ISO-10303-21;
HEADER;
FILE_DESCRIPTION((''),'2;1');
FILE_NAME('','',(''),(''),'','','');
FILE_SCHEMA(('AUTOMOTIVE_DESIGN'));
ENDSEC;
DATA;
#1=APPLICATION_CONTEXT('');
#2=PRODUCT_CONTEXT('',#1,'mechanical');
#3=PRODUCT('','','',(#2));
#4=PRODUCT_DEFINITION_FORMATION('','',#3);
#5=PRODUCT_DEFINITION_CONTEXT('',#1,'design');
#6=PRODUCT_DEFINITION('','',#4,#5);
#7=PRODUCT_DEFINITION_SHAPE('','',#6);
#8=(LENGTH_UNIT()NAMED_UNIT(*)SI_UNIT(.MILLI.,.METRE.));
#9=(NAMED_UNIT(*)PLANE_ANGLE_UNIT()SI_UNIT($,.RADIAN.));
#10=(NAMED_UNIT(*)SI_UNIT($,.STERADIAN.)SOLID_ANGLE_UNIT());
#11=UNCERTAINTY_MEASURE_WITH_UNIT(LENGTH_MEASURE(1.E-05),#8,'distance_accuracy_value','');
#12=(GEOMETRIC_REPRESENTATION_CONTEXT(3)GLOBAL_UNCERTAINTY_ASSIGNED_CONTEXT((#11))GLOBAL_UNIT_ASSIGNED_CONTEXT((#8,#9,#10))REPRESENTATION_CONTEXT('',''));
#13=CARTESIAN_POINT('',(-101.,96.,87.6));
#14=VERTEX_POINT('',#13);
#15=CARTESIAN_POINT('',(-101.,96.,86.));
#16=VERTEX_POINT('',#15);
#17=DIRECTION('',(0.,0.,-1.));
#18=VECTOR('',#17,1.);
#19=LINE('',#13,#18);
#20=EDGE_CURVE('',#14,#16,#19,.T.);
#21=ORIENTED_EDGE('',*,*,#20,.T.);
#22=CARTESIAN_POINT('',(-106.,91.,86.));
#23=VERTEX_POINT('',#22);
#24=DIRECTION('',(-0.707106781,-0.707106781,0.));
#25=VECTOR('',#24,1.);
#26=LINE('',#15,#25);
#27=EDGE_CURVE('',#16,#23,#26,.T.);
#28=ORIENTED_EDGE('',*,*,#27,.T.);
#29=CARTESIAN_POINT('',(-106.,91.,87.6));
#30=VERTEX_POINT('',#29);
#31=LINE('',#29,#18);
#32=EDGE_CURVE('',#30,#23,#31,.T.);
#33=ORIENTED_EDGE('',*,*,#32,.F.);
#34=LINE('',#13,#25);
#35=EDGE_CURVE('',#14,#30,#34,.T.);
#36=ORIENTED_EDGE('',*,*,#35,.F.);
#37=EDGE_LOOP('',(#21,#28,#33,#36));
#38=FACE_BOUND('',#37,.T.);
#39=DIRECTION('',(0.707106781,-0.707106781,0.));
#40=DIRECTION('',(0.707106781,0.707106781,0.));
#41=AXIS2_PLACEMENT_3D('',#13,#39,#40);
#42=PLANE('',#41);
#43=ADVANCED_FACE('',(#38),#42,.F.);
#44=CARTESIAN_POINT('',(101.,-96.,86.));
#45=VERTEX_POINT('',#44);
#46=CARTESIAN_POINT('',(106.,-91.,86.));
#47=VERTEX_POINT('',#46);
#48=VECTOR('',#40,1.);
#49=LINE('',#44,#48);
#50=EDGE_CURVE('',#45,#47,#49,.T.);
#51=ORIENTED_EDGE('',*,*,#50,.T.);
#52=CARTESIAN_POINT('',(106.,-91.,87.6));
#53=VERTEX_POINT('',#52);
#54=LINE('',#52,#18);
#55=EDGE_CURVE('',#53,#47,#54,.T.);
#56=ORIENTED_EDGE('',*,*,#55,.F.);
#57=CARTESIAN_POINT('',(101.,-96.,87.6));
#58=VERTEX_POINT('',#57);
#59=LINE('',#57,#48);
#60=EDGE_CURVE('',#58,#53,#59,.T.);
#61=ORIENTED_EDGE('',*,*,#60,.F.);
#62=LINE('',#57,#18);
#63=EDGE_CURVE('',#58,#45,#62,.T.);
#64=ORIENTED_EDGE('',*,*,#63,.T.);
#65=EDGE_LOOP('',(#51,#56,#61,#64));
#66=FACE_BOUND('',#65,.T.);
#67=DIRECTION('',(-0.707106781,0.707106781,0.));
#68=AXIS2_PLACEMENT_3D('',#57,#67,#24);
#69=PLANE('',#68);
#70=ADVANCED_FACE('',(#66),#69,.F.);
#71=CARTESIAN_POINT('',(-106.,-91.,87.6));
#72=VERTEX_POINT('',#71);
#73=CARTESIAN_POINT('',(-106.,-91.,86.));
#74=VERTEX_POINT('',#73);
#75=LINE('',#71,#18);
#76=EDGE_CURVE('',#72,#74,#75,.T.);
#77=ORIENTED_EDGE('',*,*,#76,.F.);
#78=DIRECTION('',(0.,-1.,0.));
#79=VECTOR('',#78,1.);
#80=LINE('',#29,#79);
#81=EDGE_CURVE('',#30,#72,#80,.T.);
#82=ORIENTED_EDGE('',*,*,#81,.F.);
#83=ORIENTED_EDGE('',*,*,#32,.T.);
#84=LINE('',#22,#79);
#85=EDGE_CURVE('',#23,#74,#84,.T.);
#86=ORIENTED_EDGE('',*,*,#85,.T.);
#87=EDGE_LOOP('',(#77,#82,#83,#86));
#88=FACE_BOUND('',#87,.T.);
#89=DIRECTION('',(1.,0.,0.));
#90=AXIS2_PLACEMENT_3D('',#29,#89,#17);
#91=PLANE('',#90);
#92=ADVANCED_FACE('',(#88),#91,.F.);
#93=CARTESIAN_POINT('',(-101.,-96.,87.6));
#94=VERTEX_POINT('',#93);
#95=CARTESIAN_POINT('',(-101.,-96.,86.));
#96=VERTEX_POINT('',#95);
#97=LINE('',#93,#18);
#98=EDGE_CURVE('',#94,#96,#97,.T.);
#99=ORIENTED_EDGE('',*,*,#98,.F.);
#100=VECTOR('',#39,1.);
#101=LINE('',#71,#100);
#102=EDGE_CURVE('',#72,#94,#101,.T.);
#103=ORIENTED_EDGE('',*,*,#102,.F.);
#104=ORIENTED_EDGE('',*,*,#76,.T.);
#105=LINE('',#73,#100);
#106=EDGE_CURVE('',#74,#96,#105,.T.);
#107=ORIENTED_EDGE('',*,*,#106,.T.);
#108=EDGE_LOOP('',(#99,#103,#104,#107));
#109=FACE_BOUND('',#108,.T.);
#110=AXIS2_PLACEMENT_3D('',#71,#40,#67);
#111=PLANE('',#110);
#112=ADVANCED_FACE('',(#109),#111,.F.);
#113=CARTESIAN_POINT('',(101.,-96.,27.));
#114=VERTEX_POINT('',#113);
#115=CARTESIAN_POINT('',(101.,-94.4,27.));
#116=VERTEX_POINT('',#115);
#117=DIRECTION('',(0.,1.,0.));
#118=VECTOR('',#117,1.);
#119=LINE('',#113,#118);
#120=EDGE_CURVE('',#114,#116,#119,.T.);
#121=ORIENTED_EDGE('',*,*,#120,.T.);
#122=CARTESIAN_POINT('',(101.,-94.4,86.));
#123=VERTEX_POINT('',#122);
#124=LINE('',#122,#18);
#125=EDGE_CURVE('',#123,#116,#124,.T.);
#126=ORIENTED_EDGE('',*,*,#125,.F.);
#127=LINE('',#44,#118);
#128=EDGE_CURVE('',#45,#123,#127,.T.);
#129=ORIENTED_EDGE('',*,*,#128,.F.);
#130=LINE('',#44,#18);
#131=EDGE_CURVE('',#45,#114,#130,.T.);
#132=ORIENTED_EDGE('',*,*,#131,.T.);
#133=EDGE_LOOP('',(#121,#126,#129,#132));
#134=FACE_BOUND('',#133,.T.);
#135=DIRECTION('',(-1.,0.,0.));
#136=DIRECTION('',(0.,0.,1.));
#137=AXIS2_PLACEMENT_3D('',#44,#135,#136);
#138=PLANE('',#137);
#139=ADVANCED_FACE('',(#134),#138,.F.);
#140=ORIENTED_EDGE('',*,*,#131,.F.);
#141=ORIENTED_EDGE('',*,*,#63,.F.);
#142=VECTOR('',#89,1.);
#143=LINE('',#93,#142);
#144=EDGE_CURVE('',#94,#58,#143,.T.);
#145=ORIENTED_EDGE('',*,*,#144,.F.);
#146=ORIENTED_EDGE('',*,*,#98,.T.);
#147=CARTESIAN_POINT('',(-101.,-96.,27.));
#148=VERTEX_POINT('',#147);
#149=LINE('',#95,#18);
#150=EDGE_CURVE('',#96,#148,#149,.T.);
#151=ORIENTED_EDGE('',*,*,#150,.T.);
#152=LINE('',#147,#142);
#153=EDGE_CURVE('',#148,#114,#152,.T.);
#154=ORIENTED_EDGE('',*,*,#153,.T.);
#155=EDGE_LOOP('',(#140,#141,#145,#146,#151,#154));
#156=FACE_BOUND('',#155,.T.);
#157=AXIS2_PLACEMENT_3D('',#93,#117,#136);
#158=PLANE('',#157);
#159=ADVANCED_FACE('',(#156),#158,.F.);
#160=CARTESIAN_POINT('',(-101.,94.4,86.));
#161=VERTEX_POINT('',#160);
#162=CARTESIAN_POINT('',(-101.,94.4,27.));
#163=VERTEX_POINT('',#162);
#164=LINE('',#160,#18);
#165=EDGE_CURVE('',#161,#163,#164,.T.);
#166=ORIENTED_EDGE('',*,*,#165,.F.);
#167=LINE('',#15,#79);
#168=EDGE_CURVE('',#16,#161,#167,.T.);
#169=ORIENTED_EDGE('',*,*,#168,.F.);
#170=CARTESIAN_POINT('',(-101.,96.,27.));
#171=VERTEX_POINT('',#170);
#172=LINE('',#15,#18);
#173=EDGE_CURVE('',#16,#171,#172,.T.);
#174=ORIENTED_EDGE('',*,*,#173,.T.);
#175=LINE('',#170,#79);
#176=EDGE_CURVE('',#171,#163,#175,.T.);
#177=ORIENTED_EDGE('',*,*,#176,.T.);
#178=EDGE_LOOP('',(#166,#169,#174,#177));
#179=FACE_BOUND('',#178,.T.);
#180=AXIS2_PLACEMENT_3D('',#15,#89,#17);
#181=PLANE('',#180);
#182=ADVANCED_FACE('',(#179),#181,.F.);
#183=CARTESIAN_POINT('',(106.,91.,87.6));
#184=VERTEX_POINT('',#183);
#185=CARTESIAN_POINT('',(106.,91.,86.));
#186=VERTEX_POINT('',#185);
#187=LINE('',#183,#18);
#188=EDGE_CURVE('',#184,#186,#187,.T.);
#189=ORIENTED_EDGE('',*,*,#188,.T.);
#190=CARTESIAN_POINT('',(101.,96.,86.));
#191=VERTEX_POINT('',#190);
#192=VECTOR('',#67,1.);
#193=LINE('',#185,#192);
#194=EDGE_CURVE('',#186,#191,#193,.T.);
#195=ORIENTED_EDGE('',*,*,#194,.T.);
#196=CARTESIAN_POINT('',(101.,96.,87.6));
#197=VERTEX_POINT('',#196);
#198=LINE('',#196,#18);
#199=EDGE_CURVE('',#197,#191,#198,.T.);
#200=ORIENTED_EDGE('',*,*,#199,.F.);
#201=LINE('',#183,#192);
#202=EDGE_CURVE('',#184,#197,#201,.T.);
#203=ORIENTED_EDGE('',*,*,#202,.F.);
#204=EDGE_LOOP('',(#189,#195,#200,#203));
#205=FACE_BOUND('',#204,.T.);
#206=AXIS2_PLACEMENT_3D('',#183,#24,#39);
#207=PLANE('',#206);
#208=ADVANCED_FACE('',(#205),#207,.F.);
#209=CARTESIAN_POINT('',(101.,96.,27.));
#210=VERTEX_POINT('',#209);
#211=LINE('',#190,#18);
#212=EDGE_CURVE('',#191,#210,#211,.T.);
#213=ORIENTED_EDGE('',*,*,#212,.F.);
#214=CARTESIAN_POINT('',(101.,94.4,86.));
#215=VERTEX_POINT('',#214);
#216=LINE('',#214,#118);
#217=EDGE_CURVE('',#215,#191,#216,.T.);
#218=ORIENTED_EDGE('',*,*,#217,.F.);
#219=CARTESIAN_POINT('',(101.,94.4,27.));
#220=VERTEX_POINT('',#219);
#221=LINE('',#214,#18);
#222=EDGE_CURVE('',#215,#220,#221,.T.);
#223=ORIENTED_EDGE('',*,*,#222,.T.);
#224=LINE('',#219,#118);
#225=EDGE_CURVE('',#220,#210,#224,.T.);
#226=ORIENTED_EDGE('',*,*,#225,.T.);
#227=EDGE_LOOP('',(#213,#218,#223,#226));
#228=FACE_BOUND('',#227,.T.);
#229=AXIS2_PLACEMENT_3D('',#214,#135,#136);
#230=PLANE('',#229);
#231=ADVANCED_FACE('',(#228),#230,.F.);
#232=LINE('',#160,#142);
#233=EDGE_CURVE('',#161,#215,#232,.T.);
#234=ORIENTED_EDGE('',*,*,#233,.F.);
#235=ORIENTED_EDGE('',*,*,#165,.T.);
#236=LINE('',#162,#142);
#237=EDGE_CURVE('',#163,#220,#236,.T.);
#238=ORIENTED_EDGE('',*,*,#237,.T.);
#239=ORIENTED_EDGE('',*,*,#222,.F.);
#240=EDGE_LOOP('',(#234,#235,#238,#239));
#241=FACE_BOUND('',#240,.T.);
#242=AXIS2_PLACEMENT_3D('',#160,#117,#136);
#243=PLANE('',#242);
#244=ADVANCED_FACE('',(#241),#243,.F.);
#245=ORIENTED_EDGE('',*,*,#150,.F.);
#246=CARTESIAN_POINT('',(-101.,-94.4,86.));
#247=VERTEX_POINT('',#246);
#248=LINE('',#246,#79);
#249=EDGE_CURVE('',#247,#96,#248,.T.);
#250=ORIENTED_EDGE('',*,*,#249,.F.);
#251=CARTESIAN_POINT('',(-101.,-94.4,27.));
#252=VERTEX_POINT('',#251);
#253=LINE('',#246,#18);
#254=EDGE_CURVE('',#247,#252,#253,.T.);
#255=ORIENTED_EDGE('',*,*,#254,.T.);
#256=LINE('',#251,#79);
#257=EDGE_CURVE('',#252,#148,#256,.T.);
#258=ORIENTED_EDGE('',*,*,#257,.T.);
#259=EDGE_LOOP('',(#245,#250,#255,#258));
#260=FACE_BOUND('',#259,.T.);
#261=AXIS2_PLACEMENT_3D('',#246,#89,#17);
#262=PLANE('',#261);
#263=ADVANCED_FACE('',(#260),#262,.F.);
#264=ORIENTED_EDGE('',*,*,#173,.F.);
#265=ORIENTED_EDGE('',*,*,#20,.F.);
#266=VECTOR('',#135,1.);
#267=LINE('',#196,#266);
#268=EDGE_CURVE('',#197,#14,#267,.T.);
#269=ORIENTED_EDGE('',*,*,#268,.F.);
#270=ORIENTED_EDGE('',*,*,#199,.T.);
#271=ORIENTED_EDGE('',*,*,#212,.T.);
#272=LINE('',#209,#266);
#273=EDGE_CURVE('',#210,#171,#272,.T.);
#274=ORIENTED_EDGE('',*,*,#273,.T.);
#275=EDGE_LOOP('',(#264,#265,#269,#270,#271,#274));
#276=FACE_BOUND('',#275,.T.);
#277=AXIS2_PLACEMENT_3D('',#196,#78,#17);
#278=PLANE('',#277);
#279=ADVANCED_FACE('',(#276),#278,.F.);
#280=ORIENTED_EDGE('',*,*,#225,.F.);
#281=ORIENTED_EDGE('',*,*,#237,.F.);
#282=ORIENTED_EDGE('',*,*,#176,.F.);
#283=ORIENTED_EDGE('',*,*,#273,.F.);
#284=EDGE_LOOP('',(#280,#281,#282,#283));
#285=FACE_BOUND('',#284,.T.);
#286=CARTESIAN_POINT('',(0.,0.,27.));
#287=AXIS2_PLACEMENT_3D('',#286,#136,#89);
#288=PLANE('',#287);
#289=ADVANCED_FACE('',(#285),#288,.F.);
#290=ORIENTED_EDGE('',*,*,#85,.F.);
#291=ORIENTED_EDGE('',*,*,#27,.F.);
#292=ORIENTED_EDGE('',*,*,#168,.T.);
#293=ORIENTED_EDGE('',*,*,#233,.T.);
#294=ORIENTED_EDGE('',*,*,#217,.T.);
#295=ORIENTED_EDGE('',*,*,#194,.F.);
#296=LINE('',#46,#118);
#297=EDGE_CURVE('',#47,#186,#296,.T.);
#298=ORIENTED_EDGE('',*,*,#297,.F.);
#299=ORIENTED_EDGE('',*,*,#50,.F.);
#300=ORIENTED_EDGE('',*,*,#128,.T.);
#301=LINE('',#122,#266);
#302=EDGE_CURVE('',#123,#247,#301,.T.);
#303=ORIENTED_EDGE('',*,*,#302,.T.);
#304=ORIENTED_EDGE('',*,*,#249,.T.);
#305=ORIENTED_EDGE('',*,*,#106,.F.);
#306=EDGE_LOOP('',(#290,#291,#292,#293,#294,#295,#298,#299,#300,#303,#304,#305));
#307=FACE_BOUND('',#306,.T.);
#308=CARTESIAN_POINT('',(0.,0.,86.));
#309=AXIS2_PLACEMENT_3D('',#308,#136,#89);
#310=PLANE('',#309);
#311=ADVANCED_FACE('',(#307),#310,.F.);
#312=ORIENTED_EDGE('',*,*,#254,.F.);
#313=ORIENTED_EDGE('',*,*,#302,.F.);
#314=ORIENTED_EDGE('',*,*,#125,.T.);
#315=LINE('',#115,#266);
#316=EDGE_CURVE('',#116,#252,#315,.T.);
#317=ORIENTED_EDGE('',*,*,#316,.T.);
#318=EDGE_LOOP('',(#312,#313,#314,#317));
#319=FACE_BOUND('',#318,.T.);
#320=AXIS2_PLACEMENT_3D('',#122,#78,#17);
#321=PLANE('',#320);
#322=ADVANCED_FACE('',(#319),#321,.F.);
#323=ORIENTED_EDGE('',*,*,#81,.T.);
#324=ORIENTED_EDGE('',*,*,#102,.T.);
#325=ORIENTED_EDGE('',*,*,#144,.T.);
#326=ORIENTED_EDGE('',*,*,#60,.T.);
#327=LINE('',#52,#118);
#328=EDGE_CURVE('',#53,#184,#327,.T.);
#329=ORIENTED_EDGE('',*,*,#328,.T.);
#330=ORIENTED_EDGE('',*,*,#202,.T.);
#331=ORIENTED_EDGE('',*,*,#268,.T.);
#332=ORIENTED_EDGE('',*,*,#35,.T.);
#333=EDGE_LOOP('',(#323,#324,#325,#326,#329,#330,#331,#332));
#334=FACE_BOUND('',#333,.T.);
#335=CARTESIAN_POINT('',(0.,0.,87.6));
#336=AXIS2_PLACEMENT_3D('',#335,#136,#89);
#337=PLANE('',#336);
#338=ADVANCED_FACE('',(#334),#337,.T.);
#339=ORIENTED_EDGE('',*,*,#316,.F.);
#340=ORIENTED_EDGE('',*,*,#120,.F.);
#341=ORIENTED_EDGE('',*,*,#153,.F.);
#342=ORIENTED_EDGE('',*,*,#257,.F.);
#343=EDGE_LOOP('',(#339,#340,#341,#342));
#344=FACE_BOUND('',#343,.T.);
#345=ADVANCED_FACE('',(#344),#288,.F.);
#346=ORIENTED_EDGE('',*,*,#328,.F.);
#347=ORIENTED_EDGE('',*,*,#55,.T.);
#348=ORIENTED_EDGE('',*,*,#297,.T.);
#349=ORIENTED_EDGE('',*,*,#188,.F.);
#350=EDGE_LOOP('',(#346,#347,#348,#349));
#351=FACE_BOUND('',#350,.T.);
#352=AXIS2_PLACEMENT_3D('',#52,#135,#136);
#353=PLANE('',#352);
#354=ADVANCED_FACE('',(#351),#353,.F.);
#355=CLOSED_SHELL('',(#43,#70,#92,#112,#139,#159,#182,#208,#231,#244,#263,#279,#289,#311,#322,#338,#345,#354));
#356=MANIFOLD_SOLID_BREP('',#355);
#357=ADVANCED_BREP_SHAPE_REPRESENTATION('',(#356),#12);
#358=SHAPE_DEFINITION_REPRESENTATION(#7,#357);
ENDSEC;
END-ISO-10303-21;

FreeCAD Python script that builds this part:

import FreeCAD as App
import Part
import Sketcher
from FreeCAD import Vector

doc = App.newDocument("Part")
body = doc.addObject("PartDesign::Body", "Body")

# Sketch on XY plane
sketch1 = doc.addObject("Sketcher::SketchObject", "Sketch")
body.addObject(sketch1)
sketch1.AttachmentSupport = (doc.XY_Plane, [""])
sketch1.MapMode = "FlatFace"
sketch1.AttachmentOffset = App.Placement(Vector(0, 0, 86), App.Rotation())
sketch1.addGeometry([
    Part.LineSegment(Vector(-101, -96, 0), Vector(101, -96, 0)),  # 0
    Part.LineSegment(Vector(101, -96, 0), Vector(106, -91, 0)),  # 1
    Part.LineSegment(Vector(106, -91, 0), Vector(106, 91, 0)),  # 2
    Part.LineSegment(Vector(106, 91, 0), Vector(101, 96, 0)),  # 3
    Part.LineSegment(Vector(101, 96, 0), Vector(-101, 96, 0)),  # 4
    Part.LineSegment(Vector(-101, 96, 0), Vector(-106, 91, 0)),  # 5
    Part.LineSegment(Vector(-106, 91, 0), Vector(-106, -91, 0)),  # 6
    Part.LineSegment(Vector(-106, -91, 0), Vector(-101, -96, 0)),  # 7
], False)
sketch1.addConstraint([
    Sketcher.Constraint("Coincident", 0, 2, 1, 1),
    Sketcher.Constraint("Coincident", 1, 2, 2, 1),
    Sketcher.Constraint("Coincident", 2, 2, 3, 1),
    Sketcher.Constraint("Coincident", 3, 2, 4, 1),
    Sketcher.Constraint("Coincident", 4, 2, 5, 1),
    Sketcher.Constraint("Coincident", 5, 2, 6, 1),
    Sketcher.Constraint("Coincident", 6, 2, 7, 1),
    Sketcher.Constraint("Coincident", 7, 2, 0, 1),
    Sketcher.Constraint("Horizontal", 0),
    Sketcher.Constraint("Vertical", 2),
    Sketcher.Constraint("Horizontal", 4),
    Sketcher.Constraint("Vertical", 6),
    Sketcher.Constraint("Symmetric", 0, 2, 4, 2, -1, 1),
    Sketcher.Constraint("Symmetric", 1, 2, 5, 2, -1, 1),
    Sketcher.Constraint("Perpendicular", 1, 3),
    Sketcher.Constraint("Perpendicular", 5, 7),
    Sketcher.Constraint("Horizontal", 2, 2, 5, 2),
    Sketcher.Constraint("Horizontal", 1, 2, 6, 2),
    Sketcher.Constraint("Vertical", 0, 2, 3, 2),
    Sketcher.Constraint("DistanceX", 0, 1, 0, 2, 202.0),
    Sketcher.Constraint("DistanceY", 2, 1, 2, 2, 182.0),
    Sketcher.Constraint("DistanceY", 0, 2, -1, 1, 96.0),
])
pad1 = doc.addObject("PartDesign::Pad", "Pad")
body.addObject(pad1)
pad1.Profile = sketch1
pad1.Length = 1.6

# Sketch on XY plane
sketch2 = doc.addObject("Sketcher::SketchObject", "Sketch001")
body.addObject(sketch2)
sketch2.AttachmentSupport = (doc.XY_Plane, [""])
sketch2.MapMode = "FlatFace"
sketch2.AttachmentOffset = App.Placement(Vector(0, 0, 27), App.Rotation())
sketch2.addGeometry([
    Part.LineSegment(Vector(-101, 96, 0), Vector(-101, 94.4, 0)),  # 0
    Part.LineSegment(Vector(-101, 94.4, 0), Vector(101, 94.4, 0)),  # 1
    Part.LineSegment(Vector(101, 94.4, 0), Vector(101, 96, 0)),  # 2
    Part.LineSegment(Vector(101, 96, 0), Vector(-101, 96, 0)),  # 3
    Part.LineSegment(Vector(-101, -94.4, 0), Vector(-101, -96, 0)),  # 4
    Part.LineSegment(Vector(-101, -96, 0), Vector(101, -96, 0)),  # 5
    Part.LineSegment(Vector(101, -96, 0), Vector(101, -94.4, 0)),  # 6
    Part.LineSegment(Vector(101, -94.4, 0), Vector(-101, -94.4, 0)),  # 7
], False)
sketch2.addConstraint([
    Sketcher.Constraint("Coincident", 0, 2, 1, 1),
    Sketcher.Constraint("Coincident", 1, 2, 2, 1),
    Sketcher.Constraint("Coincident", 2, 2, 3, 1),
    Sketcher.Constraint("Coincident", 3, 2, 0, 1),
    Sketcher.Constraint("Coincident", 4, 2, 5, 1),
    Sketcher.Constraint("Coincident", 5, 2, 6, 1),
    Sketcher.Constraint("Coincident", 6, 2, 7, 1),
    Sketcher.Constraint("Coincident", 7, 2, 4, 1),
    Sketcher.Constraint("Vertical", 0),
    Sketcher.Constraint("Horizontal", 1),
    Sketcher.Constraint("Vertical", 2),
    Sketcher.Constraint("Horizontal", 3),
    Sketcher.Constraint("Vertical", 4),
    Sketcher.Constraint("Horizontal", 5),
    Sketcher.Constraint("Vertical", 6),
    Sketcher.Constraint("Horizontal", 7),
    Sketcher.Constraint("Symmetric", 2, 2, 4, 2, -1, 1),
    Sketcher.Constraint("Symmetric", 0, 2, 6, 2, -1, 1),
    Sketcher.Constraint("Vertical", 3, 2, 4, 2),
    Sketcher.Constraint("DistanceX", 1, 1, 1, 2, 202.0),
    Sketcher.Constraint("DistanceY", 0, 2, 0, 1, 1.6),
    Sketcher.Constraint("DistanceY", -1, 1, 2, 2, 96.0),
])
pad2 = doc.addObject("PartDesign::Pad", "Pad001")
body.addObject(pad2)
pad2.Profile = sketch2
pad2.Length = 59

doc.recompute()
